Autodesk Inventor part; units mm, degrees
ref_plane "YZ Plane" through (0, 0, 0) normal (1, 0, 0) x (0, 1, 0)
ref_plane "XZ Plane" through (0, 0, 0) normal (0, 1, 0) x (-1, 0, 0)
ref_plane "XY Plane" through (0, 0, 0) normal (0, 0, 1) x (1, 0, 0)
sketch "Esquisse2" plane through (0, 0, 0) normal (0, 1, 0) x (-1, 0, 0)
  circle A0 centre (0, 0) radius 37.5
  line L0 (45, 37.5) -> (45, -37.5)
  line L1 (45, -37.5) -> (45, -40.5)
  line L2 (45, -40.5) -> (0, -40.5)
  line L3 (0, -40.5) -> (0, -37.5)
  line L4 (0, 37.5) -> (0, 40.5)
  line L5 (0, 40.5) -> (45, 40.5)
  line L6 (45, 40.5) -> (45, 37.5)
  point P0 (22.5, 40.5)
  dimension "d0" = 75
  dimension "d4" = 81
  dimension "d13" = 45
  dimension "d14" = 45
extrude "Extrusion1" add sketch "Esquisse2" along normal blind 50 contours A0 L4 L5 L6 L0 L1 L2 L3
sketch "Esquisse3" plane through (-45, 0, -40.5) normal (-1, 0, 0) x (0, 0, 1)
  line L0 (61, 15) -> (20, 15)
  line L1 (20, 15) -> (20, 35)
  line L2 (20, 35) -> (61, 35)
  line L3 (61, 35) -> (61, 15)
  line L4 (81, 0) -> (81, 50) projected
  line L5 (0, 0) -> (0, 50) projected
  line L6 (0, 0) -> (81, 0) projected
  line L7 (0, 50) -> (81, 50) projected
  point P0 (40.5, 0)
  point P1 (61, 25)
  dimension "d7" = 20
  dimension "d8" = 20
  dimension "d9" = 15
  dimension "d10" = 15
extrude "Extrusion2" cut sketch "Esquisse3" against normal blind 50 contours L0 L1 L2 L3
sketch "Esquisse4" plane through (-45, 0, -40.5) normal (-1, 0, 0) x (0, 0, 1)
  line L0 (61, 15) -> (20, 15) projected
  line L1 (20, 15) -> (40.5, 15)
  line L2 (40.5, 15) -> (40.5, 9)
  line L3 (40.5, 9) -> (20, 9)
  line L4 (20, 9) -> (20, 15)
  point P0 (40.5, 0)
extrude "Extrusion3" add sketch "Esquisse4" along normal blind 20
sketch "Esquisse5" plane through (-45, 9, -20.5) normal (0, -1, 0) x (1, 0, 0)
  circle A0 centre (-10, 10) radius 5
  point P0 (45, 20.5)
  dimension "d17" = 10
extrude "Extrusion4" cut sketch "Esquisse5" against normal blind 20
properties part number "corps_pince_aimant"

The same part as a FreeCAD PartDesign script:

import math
import FreeCAD as App
import Part
import Sketcher
Q = App.Units.Quantity

doc = App.newDocument("Part")
body = doc.addObject("PartDesign::Body", "Body")

# Sketch on XZ plane
sketch1 = body.newObject("Sketcher::SketchObject", "Sketch")
sketch1.AttachmentSupport = (doc.getObject("XZ_Plane"), [""])
sketch1.MapMode = "FlatFace"
sketch1.addGeometry([
    Part.ArcOfCircle(Part.Circle(App.Vector(0, 0, 0), App.Vector(0, 0, 1), 37.5), math.radians(90), math.radians(270)),  # 0
    Part.LineSegment(App.Vector(0, -37.5, 0), App.Vector(0, -40.5, 0)),  # 1
    Part.LineSegment(App.Vector(0, -40.5, 0), App.Vector(-45, -40.5, 0)),  # 2
    Part.LineSegment(App.Vector(-45, -40.5, 0), App.Vector(-45, 40.5, 0)),  # 3
    Part.LineSegment(App.Vector(-45, 40.5, 0), App.Vector(0, 40.5, 0)),  # 4
    Part.LineSegment(App.Vector(0, 40.5, 0), App.Vector(0, 37.5, 0)),  # 5
], False)
sketch1.addConstraint([
    Sketcher.Constraint("Coincident", 0, 2, 1, 1),
    Sketcher.Constraint("Coincident", 1, 2, 2, 1),
    Sketcher.Constraint("Coincident", 2, 2, 3, 1),
    Sketcher.Constraint("Coincident", 3, 2, 4, 1),
    Sketcher.Constraint("Coincident", 4, 2, 5, 1),
    Sketcher.Constraint("Coincident", 5, 2, 0, 1),
    Sketcher.Constraint("Vertical", 1),
    Sketcher.Constraint("Horizontal", 2),
    Sketcher.Constraint("Vertical", 3),
    Sketcher.Constraint("Horizontal", 4),
    Sketcher.Constraint("Vertical", 5),
    Sketcher.Constraint("Coincident", 0, 3, -1, 1),
    Sketcher.Constraint("Symmetric", 1, 2, 4, 2, -1, 1),
    Sketcher.Constraint("PointOnObject", 0, 2, -2),
    Sketcher.Constraint("Radius", 0, Q("37.5 mm")),
    Sketcher.Constraint("DistanceX", 2, 2, 2, 1, Q("45 mm")),
    Sketcher.Constraint("DistanceY", 3, 1, 3, 2, Q("81 mm")),
])
pad1 = body.newObject("PartDesign::Pad", "Pad")
pad1.Profile = sketch1
pad1.Length = 50
pad1.Reversed = True

# Sketch on YZ plane
sketch2 = body.newObject("Sketcher::SketchObject", "Sketch001")
sketch2.AttachmentSupport = (doc.getObject("YZ_Plane"), [""])
sketch2.MapMode = "FlatFace"
sketch2.AttachmentOffset = App.Placement(App.Vector(0, 0, -45), App.Rotation())
sketch2.addGeometry([
    Part.LineSegment(App.Vector(15, -20.5, 0), App.Vector(15, 20.5, 0)),
    Part.LineSegment(App.Vector(15, 20.5, 0), App.Vector(35, 20.5, 0)),
    Part.LineSegment(App.Vector(35, 20.5, 0), App.Vector(35, -20.5, 0)),
    Part.LineSegment(App.Vector(35, -20.5, 0), App.Vector(15, -20.5, 0)),
], False)
sketch2.addConstraint([
    Sketcher.Constraint("Coincident", 0, 2, 1, 1),
    Sketcher.Constraint("Coincident", 1, 2, 2, 1),
    Sketcher.Constraint("Coincident", 2, 2, 3, 1),
    Sketcher.Constraint("Coincident", 3, 2, 0, 1),
    Sketcher.Constraint("Vertical", 0),
    Sketcher.Constraint("Horizontal", 1),
    Sketcher.Constraint("Vertical", 2),
    Sketcher.Constraint("Horizontal", 3),
    Sketcher.Constraint("DistanceX", 1, 1, 1, 2, Q("20 mm")),
    Sketcher.Constraint("DistanceX", -1, 1, 0, 2, Q("15 mm")),
    Sketcher.Constraint("DistanceY", 0, 1, 0, 2, Q("41 mm")),
    Sketcher.Constraint("DistanceY", -1, 1, 0, 2, Q("20.5 mm")),
])
pocket1 = body.newObject("PartDesign::Pocket", "Pocket")
pocket1.Profile = sketch2
pocket1.Length = 50
pocket1.Reversed = True

# Sketch on YZ plane
sketch3 = body.newObject("Sketcher::SketchObject", "Sketch002")
sketch3.AttachmentSupport = (doc.getObject("YZ_Plane"), [""])
sketch3.MapMode = "FlatFace"
sketch3.AttachmentOffset = App.Placement(App.Vector(0, 0, -45), App.Rotation())
sketch3.addGeometry([
    Part.LineSegment(App.Vector(9, 0, 0), App.Vector(15, 0, 0)),
    Part.LineSegment(App.Vector(15, 0, 0), App.Vector(15, -20.5, 0)),
    Part.LineSegment(App.Vector(15, -20.5, 0), App.Vector(9, -20.5, 0)),
    Part.LineSegment(App.Vector(9, -20.5, 0), App.Vector(9, 0, 0)),
], False)
sketch3.addConstraint([
    Sketcher.Constraint("Coincident", 0, 2, 1, 1),
    Sketcher.Constraint("Coincident", 1, 2, 2, 1),
    Sketcher.Constraint("Coincident", 2, 2, 3, 1),
    Sketcher.Constraint("Coincident", 3, 2, 0, 1),
    Sketcher.Constraint("Horizontal", 0),
    Sketcher.Constraint("Vertical", 1),
    Sketcher.Constraint("Horizontal", 2),
    Sketcher.Constraint("Vertical", 3),
    Sketcher.Constraint("PointOnObject", 0, 2, -1),
    Sketcher.Constraint("DistanceX", 0, 1, 0, 2, Q("6 mm")),
    Sketcher.Constraint("DistanceY", 1, 2, 1, 1, Q("20.5 mm")),
    Sketcher.Constraint("DistanceX", -1, 1, 0, 2, Q("15 mm")),
])
pad2 = body.newObject("PartDesign::Pad", "Pad001")
pad2.Profile = sketch3
pad2.Length = 20
pad2.Reversed = True

# Sketch on XZ plane
sketch4 = body.newObject("Sketcher::SketchObject", "Sketch003")
sketch4.AttachmentSupport = (doc.getObject("XZ_Plane"), [""])
sketch4.MapMode = "FlatFace"
sketch4.AttachmentOffset = App.Placement(App.Vector(0, 0, -9), App.Rotation())
sketch4.addGeometry(Part.Circle(App.Vector(-55, -10.5, 0), App.Vector(0, 0, 1), 5), False)
sketch4.addConstraint([
    Sketcher.Constraint("Diameter", 0, Q("10 mm")),
    Sketcher.Constraint("DistanceX", 0, 3, -1, 1, Q("55 mm")),
    Sketcher.Constraint("DistanceY", 0, 3, -1, 1, Q("10.5 mm")),
])
pocket2 = body.newObject("PartDesign::Pocket", "Pocket001")
pocket2.Profile = sketch4
pocket2.Length = 20

doc.recompute()
